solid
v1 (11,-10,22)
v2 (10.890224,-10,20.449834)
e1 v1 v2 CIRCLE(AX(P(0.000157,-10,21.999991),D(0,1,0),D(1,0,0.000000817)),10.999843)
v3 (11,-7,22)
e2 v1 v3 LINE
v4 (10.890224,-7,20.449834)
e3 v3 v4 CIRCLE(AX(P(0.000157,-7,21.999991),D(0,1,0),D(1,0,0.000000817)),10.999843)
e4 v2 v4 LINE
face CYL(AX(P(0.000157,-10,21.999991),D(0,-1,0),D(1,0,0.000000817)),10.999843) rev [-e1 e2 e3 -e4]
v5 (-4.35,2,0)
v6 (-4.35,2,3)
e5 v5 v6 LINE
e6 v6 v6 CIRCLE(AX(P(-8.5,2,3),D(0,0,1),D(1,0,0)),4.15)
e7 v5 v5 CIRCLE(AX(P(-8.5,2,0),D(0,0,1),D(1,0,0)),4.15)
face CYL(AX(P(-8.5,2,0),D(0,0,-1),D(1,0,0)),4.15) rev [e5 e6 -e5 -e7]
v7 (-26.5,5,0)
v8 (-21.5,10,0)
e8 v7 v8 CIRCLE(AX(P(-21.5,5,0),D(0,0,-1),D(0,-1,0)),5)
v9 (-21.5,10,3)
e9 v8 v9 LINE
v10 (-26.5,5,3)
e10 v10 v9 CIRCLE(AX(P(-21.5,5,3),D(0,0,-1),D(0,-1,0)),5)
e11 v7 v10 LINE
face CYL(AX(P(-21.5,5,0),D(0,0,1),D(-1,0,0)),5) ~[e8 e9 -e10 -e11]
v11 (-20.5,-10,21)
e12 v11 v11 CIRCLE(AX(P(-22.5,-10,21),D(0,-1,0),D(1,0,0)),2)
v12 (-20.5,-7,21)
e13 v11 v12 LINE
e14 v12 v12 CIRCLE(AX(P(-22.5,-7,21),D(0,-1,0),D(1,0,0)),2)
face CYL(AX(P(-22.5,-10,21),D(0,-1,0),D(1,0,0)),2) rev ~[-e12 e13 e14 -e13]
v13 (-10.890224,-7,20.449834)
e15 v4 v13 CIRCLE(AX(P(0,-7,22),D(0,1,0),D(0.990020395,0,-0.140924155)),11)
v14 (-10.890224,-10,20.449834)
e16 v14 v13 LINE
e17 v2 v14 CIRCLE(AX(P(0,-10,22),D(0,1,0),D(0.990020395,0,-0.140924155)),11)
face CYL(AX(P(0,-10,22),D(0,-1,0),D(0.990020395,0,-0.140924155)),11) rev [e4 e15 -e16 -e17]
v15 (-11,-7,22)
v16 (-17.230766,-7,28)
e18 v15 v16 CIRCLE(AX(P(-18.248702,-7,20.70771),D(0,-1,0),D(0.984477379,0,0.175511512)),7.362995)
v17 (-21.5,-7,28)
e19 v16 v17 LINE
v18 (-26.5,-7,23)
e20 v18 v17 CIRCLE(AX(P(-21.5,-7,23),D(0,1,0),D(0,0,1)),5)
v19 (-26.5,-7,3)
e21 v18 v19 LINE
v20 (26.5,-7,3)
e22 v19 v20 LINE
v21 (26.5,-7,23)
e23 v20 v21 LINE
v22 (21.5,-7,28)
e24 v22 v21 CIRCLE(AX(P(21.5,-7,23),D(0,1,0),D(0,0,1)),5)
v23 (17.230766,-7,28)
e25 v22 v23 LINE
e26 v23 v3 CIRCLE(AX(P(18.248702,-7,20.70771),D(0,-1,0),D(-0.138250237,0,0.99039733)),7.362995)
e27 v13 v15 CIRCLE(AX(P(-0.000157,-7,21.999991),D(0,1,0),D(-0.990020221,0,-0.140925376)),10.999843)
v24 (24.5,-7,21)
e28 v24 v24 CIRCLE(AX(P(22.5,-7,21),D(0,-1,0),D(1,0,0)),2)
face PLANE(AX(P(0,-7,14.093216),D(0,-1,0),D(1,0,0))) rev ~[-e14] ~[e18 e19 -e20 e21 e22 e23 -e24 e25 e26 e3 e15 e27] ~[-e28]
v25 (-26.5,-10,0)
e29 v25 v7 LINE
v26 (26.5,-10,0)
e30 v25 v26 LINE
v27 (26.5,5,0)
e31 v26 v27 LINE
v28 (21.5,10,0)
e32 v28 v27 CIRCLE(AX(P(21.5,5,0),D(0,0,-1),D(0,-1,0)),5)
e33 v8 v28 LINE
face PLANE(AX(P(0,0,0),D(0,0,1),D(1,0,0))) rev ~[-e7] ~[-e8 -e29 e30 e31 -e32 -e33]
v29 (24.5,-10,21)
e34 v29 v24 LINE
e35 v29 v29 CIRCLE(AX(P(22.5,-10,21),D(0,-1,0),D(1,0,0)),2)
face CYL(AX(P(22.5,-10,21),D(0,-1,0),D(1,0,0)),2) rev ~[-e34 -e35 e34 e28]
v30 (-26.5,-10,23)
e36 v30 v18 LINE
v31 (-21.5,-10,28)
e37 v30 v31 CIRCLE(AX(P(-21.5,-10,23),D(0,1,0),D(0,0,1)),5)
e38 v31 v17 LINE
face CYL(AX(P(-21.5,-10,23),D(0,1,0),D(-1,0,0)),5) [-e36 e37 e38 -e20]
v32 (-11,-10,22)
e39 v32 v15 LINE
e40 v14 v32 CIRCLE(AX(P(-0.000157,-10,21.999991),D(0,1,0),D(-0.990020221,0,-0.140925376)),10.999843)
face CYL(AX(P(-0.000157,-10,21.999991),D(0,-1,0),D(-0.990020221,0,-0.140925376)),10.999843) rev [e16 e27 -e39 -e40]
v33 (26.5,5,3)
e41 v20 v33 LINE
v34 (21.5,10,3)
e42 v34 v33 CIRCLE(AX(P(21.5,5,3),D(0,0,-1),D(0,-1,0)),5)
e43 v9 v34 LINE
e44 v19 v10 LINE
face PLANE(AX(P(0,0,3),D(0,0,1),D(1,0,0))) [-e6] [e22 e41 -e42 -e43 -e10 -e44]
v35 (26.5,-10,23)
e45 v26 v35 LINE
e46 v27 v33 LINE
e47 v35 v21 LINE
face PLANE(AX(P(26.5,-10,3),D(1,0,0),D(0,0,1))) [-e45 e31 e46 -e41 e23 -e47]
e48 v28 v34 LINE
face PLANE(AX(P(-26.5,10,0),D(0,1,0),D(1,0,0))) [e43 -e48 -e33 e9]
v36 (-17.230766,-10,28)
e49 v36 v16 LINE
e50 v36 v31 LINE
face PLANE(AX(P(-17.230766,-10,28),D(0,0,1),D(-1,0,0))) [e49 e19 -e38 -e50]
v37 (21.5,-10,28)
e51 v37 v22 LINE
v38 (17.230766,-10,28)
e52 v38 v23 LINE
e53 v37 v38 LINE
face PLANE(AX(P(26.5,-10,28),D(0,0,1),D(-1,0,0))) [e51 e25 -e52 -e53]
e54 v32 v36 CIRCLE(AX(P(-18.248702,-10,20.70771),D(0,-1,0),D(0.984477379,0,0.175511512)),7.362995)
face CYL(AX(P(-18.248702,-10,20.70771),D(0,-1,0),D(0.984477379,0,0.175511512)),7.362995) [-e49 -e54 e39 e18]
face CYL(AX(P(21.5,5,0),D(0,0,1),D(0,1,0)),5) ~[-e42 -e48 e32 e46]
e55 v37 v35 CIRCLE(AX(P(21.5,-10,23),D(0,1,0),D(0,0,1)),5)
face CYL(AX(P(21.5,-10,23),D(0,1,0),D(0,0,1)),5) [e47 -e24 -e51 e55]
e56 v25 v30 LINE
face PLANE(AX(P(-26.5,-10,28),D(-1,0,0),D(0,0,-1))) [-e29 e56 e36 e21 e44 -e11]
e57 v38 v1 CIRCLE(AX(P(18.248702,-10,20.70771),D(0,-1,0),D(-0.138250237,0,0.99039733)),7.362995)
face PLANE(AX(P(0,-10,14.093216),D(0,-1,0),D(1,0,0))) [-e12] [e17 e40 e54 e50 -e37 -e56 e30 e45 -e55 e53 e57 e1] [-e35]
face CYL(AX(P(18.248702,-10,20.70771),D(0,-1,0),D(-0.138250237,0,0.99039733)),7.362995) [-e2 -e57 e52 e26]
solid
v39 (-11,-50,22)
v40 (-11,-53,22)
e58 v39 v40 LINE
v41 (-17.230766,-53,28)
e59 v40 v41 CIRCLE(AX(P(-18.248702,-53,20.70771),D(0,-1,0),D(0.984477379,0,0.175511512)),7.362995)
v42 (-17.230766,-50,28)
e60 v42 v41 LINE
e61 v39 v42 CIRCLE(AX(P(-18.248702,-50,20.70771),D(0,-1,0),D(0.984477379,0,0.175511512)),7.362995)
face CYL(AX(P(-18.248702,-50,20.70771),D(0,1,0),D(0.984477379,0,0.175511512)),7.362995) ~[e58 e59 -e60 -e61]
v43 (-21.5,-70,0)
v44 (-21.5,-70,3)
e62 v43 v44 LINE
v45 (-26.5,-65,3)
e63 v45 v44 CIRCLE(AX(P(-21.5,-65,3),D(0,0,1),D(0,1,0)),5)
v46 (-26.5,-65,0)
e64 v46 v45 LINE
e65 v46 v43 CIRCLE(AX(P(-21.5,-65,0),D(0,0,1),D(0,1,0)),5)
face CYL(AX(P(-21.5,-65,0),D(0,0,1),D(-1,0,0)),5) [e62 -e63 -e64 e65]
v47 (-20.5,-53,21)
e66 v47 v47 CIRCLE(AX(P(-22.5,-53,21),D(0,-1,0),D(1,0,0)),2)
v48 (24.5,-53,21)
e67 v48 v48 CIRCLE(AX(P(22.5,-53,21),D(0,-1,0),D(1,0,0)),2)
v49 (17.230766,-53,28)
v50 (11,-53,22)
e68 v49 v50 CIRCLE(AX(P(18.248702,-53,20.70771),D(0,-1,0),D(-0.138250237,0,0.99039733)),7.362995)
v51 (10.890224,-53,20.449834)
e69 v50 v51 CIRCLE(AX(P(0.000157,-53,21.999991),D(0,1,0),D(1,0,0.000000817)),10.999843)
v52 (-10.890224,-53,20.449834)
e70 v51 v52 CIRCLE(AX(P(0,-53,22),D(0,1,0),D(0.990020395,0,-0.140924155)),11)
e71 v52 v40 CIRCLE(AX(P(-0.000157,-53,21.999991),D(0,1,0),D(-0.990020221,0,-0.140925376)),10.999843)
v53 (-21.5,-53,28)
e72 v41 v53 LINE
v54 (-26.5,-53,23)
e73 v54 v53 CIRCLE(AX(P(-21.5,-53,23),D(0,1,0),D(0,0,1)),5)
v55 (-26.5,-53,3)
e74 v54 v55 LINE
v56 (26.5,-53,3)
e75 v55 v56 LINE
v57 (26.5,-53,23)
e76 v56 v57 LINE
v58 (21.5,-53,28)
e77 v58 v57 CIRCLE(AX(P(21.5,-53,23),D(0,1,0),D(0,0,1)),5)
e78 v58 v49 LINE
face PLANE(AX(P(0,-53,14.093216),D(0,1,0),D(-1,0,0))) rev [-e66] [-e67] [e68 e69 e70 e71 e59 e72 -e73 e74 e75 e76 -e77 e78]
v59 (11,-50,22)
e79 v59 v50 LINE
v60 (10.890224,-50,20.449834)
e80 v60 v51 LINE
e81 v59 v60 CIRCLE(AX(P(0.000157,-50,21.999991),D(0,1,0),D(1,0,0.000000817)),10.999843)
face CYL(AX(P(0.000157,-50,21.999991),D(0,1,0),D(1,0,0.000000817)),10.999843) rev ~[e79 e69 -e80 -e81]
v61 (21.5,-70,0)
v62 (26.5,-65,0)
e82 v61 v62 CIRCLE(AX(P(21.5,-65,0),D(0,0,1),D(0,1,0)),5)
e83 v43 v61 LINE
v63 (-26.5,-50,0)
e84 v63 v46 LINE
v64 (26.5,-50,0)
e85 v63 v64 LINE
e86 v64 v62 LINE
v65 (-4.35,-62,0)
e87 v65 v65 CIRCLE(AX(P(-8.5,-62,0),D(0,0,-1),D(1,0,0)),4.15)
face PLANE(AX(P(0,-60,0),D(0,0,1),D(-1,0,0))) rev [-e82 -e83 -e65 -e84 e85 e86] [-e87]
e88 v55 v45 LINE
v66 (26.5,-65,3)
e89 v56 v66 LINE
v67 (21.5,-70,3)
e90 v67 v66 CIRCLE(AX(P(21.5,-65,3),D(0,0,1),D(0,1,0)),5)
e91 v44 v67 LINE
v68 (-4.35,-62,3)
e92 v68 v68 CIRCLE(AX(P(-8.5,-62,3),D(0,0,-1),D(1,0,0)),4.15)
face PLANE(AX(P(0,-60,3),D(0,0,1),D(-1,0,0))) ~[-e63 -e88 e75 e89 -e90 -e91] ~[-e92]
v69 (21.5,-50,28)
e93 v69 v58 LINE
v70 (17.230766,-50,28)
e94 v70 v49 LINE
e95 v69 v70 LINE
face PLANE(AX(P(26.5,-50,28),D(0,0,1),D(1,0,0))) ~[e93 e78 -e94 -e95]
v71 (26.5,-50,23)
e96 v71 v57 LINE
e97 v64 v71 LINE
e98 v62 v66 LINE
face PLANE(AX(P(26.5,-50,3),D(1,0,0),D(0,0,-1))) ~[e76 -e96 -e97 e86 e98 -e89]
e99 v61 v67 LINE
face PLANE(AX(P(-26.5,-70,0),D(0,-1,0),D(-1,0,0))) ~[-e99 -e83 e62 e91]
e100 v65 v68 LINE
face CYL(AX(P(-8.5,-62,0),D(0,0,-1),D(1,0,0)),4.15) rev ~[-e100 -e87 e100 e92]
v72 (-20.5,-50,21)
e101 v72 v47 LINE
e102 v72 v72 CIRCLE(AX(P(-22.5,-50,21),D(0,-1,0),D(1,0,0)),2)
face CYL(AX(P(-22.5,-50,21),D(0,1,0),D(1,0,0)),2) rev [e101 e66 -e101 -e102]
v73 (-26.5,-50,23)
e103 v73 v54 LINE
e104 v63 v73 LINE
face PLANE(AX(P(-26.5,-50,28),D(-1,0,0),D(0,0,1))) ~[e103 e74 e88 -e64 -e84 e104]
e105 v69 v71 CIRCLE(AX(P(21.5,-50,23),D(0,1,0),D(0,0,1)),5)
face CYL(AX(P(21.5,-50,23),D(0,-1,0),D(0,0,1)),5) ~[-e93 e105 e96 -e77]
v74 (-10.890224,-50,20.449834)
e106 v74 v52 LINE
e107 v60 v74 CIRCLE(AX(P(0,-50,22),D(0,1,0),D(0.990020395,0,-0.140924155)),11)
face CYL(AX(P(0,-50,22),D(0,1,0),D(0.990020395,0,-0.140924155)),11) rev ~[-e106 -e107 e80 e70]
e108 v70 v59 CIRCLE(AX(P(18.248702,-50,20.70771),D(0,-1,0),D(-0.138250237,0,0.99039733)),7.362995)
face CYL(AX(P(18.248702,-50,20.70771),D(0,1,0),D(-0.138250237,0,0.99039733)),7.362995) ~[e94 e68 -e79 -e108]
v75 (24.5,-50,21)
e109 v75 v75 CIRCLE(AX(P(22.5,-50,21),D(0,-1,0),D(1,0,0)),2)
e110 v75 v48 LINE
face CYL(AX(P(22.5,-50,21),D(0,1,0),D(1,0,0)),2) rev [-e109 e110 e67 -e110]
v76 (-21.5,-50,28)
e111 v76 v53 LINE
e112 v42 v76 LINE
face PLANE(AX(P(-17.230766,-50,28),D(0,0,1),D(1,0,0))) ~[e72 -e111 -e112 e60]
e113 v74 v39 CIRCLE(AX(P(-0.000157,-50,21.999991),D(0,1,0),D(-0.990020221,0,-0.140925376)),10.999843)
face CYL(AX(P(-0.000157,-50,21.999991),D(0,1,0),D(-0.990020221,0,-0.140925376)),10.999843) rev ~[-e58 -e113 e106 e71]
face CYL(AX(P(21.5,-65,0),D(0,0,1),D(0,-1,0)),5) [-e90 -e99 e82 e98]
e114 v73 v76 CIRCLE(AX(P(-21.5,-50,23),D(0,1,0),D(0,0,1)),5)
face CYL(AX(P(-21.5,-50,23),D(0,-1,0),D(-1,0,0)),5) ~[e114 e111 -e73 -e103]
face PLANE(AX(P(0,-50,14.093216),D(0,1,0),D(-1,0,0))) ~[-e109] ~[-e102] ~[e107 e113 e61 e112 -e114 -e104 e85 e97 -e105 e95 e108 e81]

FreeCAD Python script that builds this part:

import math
import FreeCAD as App
import Part
import Sketcher
Q = App.Units.Quantity


def edges_at(feature, points):
    """Names of the edges that pass closest to the given points."""
    edges = feature.Shape.Edges
    near = lambda p: min(range(len(edges)), key=lambda i: edges[i].distToShape(Part.Vertex(*p))[0])
    return sorted({f"Edge{near(p) + 1}" for p in points})

doc = App.newDocument("Part")
body = doc.addObject("PartDesign::Body", "Body")

# Sketch on XY plane
sketch1 = body.newObject("Sketcher::SketchObject", "Sketch")
sketch1.AttachmentSupport = (doc.getObject("XY_Plane"), [""])
sketch1.MapMode = "FlatFace"
sketch1.addGeometry(Part.LineSegment(App.Vector(-26.5, 10, 0), App.Vector(-26.5, -10, 0)), False)
sketch1.addGeometry(Part.LineSegment(App.Vector(-26.5, -10, 0), App.Vector(26.5, -10, 0)), False)
sketch1.addGeometry(Part.LineSegment(App.Vector(26.5, -10, 0), App.Vector(26.5, 10, 0)), False)
sketch1.addGeometry(Part.LineSegment(App.Vector(26.5, 10, 0), App.Vector(-26.5, 10, 0)), False)
sketch1.addGeometry(Part.Circle(App.Vector(-8.5, 2, 0), App.Vector(0, 0, 1), 4.2), False)
sketch1.addConstraint(Sketcher.Constraint("Coincident", 0, 2, 1, 1))
sketch1.addConstraint(Sketcher.Constraint("Coincident", 1, 2, 2, 1))
sketch1.addConstraint(Sketcher.Constraint("Coincident", 2, 2, 3, 1))
sketch1.addConstraint(Sketcher.Constraint("Coincident", 3, 2, 0, 1))
sketch1.addConstraint(Sketcher.Constraint("Vertical", 0))
sketch1.addConstraint(Sketcher.Constraint("Horizontal", 1))
sketch1.addConstraint(Sketcher.Constraint("Vertical", 2))
sketch1.addConstraint(Sketcher.Constraint("Horizontal", 3))
sketch1.addConstraint(Sketcher.Constraint("Symmetric", 0, 2, 2, 2, -1, 1))
sketch1.addConstraint(Sketcher.Constraint("Diameter", 4, Q("8.3 mm")))
sketch1.addConstraint(Sketcher.Constraint("DistanceX", 1, 1, 1, 2, Q("53 mm")))
sketch1.addConstraint(Sketcher.Constraint("DistanceY", 0, 2, 0, 1, Q("20 mm")))
sketch1.addConstraint(Sketcher.Constraint("DistanceY", -1, 1, 4, 3, Q("2 mm")))
sketch1.addConstraint(Sketcher.Constraint("DistanceX", 0, 2, 4, 3, Q("18 mm")))
pad1 = body.newObject("PartDesign::Pad", "Pad")
pad1.Profile = sketch1
pad1.Length = 3
doc.recompute()

fillet = body.newObject("PartDesign::Fillet", "Fillet")
fillet.Base = (pad1, edges_at(pad1, [(-26.5, 10, 1.5), (26.5, 10, 1.5)]))
fillet.Radius = 5

# Sketch on XZ plane
sketch2 = body.newObject("Sketcher::SketchObject", "Sketch001")
sketch2.AttachmentSupport = (doc.getObject("XZ_Plane"), [""])
sketch2.MapMode = "FlatFace"
sketch2.AttachmentOffset = App.Placement(App.Vector(0, 0, 10), App.Rotation())
sketch2.addGeometry(Part.LineSegment(App.Vector(-26.5, 28, 0), App.Vector(-26.5, 3, 0)), False)
sketch2.addGeometry(Part.LineSegment(App.Vector(-26.5, 3, 0), App.Vector(26.5, 3, 0)), False)
sketch2.addGeometry(Part.LineSegment(App.Vector(26.5, 3, 0), App.Vector(26.5, 28, 0)), False)
sketch2.addGeometry(Part.LineSegment(App.Vector(26.5, 28, 0), App.Vector(17.230766, 28, 0)), False)
sketch2.addGeometry(Part.ArcOfCircle(Part.Circle(App.Vector(18.248702, 20.70771, 0), App.Vector(0, 0, 1), 7.362995), math.radians(97.946608), math.radians(169.891574)), False)
sketch2.addGeometry(Part.ArcOfCircle(Part.Circle(App.Vector(0.000157, 21.999991, 0), App.Vector(0, 0, 1), 10.999843), math.radians(-8.101397), math.radians(0.000047)), False)
sketch2.addGeometry(Part.ArcOfCircle(Part.Circle(App.Vector(0, 22, 0), App.Vector(0, 0, 1), 11), math.radians(-171.898673), math.radians(-8.101327)), False)
sketch2.addGeometry(Part.ArcOfCircle(Part.Circle(App.Vector(-0.000157, 21.999991, 0), App.Vector(0, 0, 1), 10.999843), math.radians(179.999953), math.radians(188.101397)), False)
sketch2.addGeometry(Part.ArcOfCircle(Part.Circle(App.Vector(-18.248702, 20.70771, 0), App.Vector(0, 0, 1), 7.362995), math.radians(10.108426), math.radians(82.053392)), False)
sketch2.addGeometry(Part.LineSegment(App.Vector(-17.230766, 28, 0), App.Vector(-26.5, 28, 0)), False)
sketch2.addGeometry(Part.Circle(App.Vector(-22.5, 21, 0), App.Vector(0, 0, 1), 2), False)
sketch2.addGeometry(Part.Circle(App.Vector(22.5, 21, 0), App.Vector(0, 0, 1), 2), False)
sketch2.addConstraint(Sketcher.Constraint("Coincident", 0, 2, 1, 1))
sketch2.addConstraint(Sketcher.Constraint("Coincident", 1, 2, 2, 1))
sketch2.addConstraint(Sketcher.Constraint("Coincident", 2, 2, 3, 1))
sketch2.addConstraint(Sketcher.Constraint("Coincident", 3, 2, 4, 1))
sketch2.addConstraint(Sketcher.Constraint("Coincident", 4, 2, 5, 2))
sketch2.addConstraint(Sketcher.Constraint("Coincident", 5, 1, 6, 2))
sketch2.addConstraint(Sketcher.Constraint("Coincident", 6, 1, 7, 2))
sketch2.addConstraint(Sketcher.Constraint("Coincident", 7, 1, 8, 1))
sketch2.addConstraint(Sketcher.Constraint("Coincident", 8, 2, 9, 1))
sketch2.addConstraint(Sketcher.Constraint("Coincident", 9, 2, 0, 1))
sketch2.addConstraint(Sketcher.Constraint("Vertical", 0))
sketch2.addConstraint(Sketcher.Constraint("Horizontal", 1))
sketch2.addConstraint(Sketcher.Constraint("Vertical", 2))
sketch2.addConstraint(Sketcher.Constraint("Horizontal", 3))
sketch2.addConstraint(Sketcher.Constraint("Horizontal", 9))
sketch2.addConstraint(Sketcher.Constraint("PointOnObject", 6, 3, -2))
sketch2.addConstraint(Sketcher.Constraint("Diameter", 10, Q("4 mm")))
sketch2.addConstraint(Sketcher.Constraint("Diameter", 11, Q("4 mm")))
sketch2.addConstraint(Sketcher.Constraint("Radius", 6, Q("11 mm")))
sketch2.addConstraint(Sketcher.Constraint("DistanceX", 1, 1, 1, 2, Q("53 mm")))
sketch2.addConstraint(Sketcher.Constraint("DistanceY", 0, 2, 0, 1, Q("25 mm")))
sketch2.addConstraint(Sketcher.Constraint("DistanceY", 2, 1, 2, 2, Q("25 mm")))
sketch2.addConstraint(Sketcher.Constraint("DistanceY", -1, 1, 6, 3, Q("22 mm")))
sketch2.addConstraint(Sketcher.Constraint("DistanceY", -1, 1, 10, 3, Q("21 mm")))
sketch2.addConstraint(Sketcher.Constraint("DistanceY", -1, 1, 11, 3, Q("21 mm")))
sketch2.addConstraint(Sketcher.Constraint("DistanceY", -1, 1, 0, 2, Q("3 mm")))
sketch2.addConstraint(Sketcher.Constraint("DistanceX", -1, 1, 4, 2, Q("11 mm")))
sketch2.addConstraint(Sketcher.Constraint("DistanceY", -1, 1, 4, 2, Q("22 mm")))
sketch2.addConstraint(Sketcher.Constraint("DistanceX", 7, 1, -1, 1, Q("11 mm")))
sketch2.addConstraint(Sketcher.Constraint("DistanceY", -1, 1, 7, 1, Q("22 mm")))
sketch2.addConstraint(Sketcher.Constraint("DistanceX", 0, 2, 10, 3, Q("4 mm")))
sketch2.addConstraint(Sketcher.Constraint("DistanceX", 11, 3, 1, 2, Q("4 mm")))
sketch2.addConstraint(Sketcher.Constraint("DistanceX", 10, 3, -1, 1, Q("22.5 mm")))
sketch2.addConstraint(Sketcher.Constraint("Radius", 4, Q("7.362995 mm")))
sketch2.addConstraint(Sketcher.Constraint("Radius", 5, Q("10.999843 mm")))
sketch2.addConstraint(Sketcher.Constraint("Radius", 7, Q("10.999843 mm")))
sketch2.addConstraint(Sketcher.Constraint("Radius", 8, Q("7.362995 mm")))
sketch2.addConstraint(Sketcher.Constraint("DistanceX", -1, 1, 4, 3, Q("18.248702 mm")))
sketch2.addConstraint(Sketcher.Constraint("DistanceX", 8, 3, -1, 1, Q("18.248702 mm")))
sketch2.addConstraint(Sketcher.Constraint("DistanceX", 6, 1, 5, 3, Q("10.890381 mm")))
sketch2.addConstraint(Sketcher.Constraint("DistanceX", -1, 1, 5, 1, Q("10.890224 mm")))
pad2 = body.newObject("PartDesign::Pad", "Pad001")
pad2.Profile = sketch2
pad2.Length = 3
pad2.Reversed = True
doc.recompute()

fillet2 = body.newObject("PartDesign::Fillet", "Fillet001")
fillet2.Base = (pad2, edges_at(pad2, [(-26.5, -8.5, 28), (26.5, -8.5, 28)]))
fillet2.Radius = 5
body2 = doc.addObject("PartDesign::Body", "Body001")
doc.recompute()

mirroring = doc.addObject("Part::Mirroring", "Mirroring")
mirroring.Source = body
mirroring.Base = App.Vector(0, -30, 0)
mirroring.Normal = App.Vector(0, -1, 0)
body2.BaseFeature = mirroring
doc.recompute()
mirroring.Visibility = False

doc.recompute()
